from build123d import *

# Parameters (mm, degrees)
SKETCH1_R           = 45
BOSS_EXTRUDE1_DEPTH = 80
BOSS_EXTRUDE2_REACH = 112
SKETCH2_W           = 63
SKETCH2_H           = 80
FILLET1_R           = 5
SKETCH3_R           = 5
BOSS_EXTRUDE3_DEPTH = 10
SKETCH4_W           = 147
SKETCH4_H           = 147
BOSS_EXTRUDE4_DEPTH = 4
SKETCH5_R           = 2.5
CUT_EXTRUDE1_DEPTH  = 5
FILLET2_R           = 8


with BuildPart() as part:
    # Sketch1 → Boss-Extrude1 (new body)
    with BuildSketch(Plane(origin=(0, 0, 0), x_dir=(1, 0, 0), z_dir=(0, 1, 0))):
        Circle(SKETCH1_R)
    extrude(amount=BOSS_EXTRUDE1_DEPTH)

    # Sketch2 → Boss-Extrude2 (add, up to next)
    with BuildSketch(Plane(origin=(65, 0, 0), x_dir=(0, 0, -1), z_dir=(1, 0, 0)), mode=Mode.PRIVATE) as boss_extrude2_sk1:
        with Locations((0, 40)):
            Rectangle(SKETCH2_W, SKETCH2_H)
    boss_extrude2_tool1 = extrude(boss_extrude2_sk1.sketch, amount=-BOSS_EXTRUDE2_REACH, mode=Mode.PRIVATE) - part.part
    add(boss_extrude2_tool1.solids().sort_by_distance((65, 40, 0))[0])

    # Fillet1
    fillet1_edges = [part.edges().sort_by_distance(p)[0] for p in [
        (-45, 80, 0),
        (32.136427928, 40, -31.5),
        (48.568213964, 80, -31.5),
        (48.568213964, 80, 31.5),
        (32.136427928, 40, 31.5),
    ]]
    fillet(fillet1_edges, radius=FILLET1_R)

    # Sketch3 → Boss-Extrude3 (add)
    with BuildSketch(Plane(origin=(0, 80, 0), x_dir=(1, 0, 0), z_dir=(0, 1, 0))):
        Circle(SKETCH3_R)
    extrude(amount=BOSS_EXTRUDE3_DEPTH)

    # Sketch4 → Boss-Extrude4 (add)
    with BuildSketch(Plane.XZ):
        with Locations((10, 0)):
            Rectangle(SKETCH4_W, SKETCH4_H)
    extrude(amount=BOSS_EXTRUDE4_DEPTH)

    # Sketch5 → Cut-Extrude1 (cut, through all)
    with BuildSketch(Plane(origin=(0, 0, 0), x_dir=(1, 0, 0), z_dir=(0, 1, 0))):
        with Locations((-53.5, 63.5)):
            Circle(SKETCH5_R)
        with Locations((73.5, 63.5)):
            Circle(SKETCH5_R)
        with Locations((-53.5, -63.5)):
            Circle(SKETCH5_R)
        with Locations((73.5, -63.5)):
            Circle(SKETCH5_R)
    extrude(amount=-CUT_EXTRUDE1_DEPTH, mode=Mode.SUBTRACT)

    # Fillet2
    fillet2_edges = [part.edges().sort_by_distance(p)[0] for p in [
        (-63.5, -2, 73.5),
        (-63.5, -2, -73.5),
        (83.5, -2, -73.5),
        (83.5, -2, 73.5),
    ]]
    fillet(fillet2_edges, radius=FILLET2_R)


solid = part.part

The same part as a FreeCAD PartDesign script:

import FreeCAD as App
import Part
import Sketcher
from FreeCAD import Vector
Q = App.Units.Quantity


def edges_at(feature, points):
    """Names of the edges that pass closest to the given points."""
    edges = feature.Shape.Edges
    near = lambda p: min(range(len(edges)), key=lambda i: edges[i].distToShape(Part.Vertex(*p))[0])
    return sorted({f"Edge{near(p) + 1}" for p in points})

doc = App.newDocument("Part")
body = doc.addObject("PartDesign::Body", "Body")

sketch1 = body.newObject("Sketcher::SketchObject", "Sketch")
sketch1.AttachmentSupport = (doc.getObject("XZ_Plane"), [""])
sketch1.MapMode = "FlatFace"
sketch1.addGeometry(Part.Circle(Vector(0, 0, 0), Vector(0, 0, 1), 45), False)
sketch1.addConstraint([
    Sketcher.Constraint("Coincident", 0, 3, -1, 1),
    Sketcher.Constraint("Diameter", 0, Q("90 mm")),
])
pad1 = body.newObject("PartDesign::Pad", "Pad")
pad1.Profile = sketch1
pad1.Length = 80
pad1.Reversed = True

sketch2 = body.newObject("Sketcher::SketchObject", "Sketch001")
sketch2.AttachmentSupport = (doc.getObject("YZ_Plane"), [""])
sketch2.MapMode = "FlatFace"
sketch2.AttachmentOffset = App.Placement(Vector(0, 0, 65), App.Rotation())
sketch2.addGeometry([
    Part.LineSegment(Vector(80, 32, 0), Vector(0, 32, 0)),
    Part.LineSegment(Vector(0, 32, 0), Vector(0, -32, 0)),
    Part.LineSegment(Vector(0, -32, 0), Vector(80, -32, 0)),
    Part.LineSegment(Vector(80, -32, 0), Vector(80, 32, 0)),
], False)
sketch2.addConstraint([
    Sketcher.Constraint("Coincident", 0, 2, 1, 1),
    Sketcher.Constraint("Coincident", 1, 2, 2, 1),
    Sketcher.Constraint("Coincident", 2, 2, 3, 1),
    Sketcher.Constraint("Coincident", 3, 2, 0, 1),
    Sketcher.Constraint("Horizontal", 0),
    Sketcher.Constraint("Vertical", 1),
    Sketcher.Constraint("Horizontal", 2),
    Sketcher.Constraint("Vertical", 3),
    Sketcher.Constraint("Symmetric", 0, 2, 1, 2, -1, 1),
    Sketcher.Constraint("DistanceX", 0, 2, 0, 1, Q("80 mm")),
    Sketcher.Constraint("DistanceY", 1, 2, 1, 1, Q("63 mm")),
])
pad2 = body.newObject("PartDesign::Pad", "Pad001")
pad2.Profile = sketch2
pad2.Type = "UpToFirst"
pad2.Reversed = True
doc.recompute()

fillet = body.newObject("PartDesign::Fillet", "Fillet")
fillet.Base = (pad2, edges_at(pad2, [
    (-45, 80, 0),
    (32.136, 40, -31.5),
    (48.568, 80, -31.5),
    (48.568, 80, 31.5),
    (32.136, 40, 31.5),
]))
fillet.Radius = 5

sketch3 = body.newObject("Sketcher::SketchObject", "Sketch002")
sketch3.AttachmentSupport = (doc.getObject("XZ_Plane"), [""])
sketch3.MapMode = "FlatFace"
sketch3.AttachmentOffset = App.Placement(Vector(0, 0, -80), App.Rotation())
sketch3.addGeometry(Part.Circle(Vector(0, 0, 0), Vector(0, 0, 1), 5), False)
sketch3.addConstraint([
    Sketcher.Constraint("Coincident", 0, 3, -1, 1),
    Sketcher.Constraint("Diameter", 0, Q("10 mm")),
])
pad3 = body.newObject("PartDesign::Pad", "Pad002")
pad3.Profile = sketch3
pad3.Length = 10
pad3.Reversed = True

sketch4 = body.newObject("Sketcher::SketchObject", "Sketch003")
sketch4.AttachmentSupport = (doc.getObject("XZ_Plane"), [""])
sketch4.MapMode = "FlatFace"
sketch4.addGeometry([
    Part.LineSegment(Vector(-64, 74, 0), Vector(-64, -74, 0)),
    Part.LineSegment(Vector(-64, -74, 0), Vector(84, -74, 0)),
    Part.LineSegment(Vector(84, -74, 0), Vector(84, 74, 0)),
    Part.LineSegment(Vector(84, 74, 0), Vector(-64, 74, 0)),
], False)
sketch4.addConstraint([
    Sketcher.Constraint("Coincident", 0, 2, 1, 1),
    Sketcher.Constraint("Coincident", 1, 2, 2, 1),
    Sketcher.Constraint("Coincident", 2, 2, 3, 1),
    Sketcher.Constraint("Coincident", 3, 2, 0, 1),
    Sketcher.Constraint("Vertical", 0),
    Sketcher.Constraint("Horizontal", 1),
    Sketcher.Constraint("Vertical", 2),
    Sketcher.Constraint("Horizontal", 3),
    Sketcher.Constraint("Equal", 3, 0),
    Sketcher.Constraint("DistanceX", 1, 1, 1, 2, Q("147 mm")),
    Sketcher.Constraint("DistanceX", 0, 2, -1, 1, Q("63.5 mm")),
    Sketcher.Constraint("DistanceY", 0, 2, -1, 1, Q("73.5 mm")),
])
pad4 = body.newObject("PartDesign::Pad", "Pad003")
pad4.Profile = sketch4
pad4.Length = 4

sketch5 = body.newObject("Sketcher::SketchObject", "Sketch004")
sketch5.AttachmentSupport = (doc.getObject("XZ_Plane"), [""])
sketch5.MapMode = "FlatFace"
sketch5.addGeometry([
    Part.Circle(Vector(-53.5, -63.5, 0), Vector(0, 0, 1), 2.5),
    Part.Circle(Vector(73.5, -63.5, 0), Vector(0, 0, 1), 2.5),
    Part.Circle(Vector(-53.5, 63.5, 0), Vector(0, 0, 1), 2.5),
    Part.Circle(Vector(73.5, 63.5, 0), Vector(0, 0, 1), 2.5),
], False)
sketch5.addConstraint([
    Sketcher.Constraint("Equal", 0, 1),
    Sketcher.Constraint("Equal", 1, 2),
    Sketcher.Constraint("Equal", 2, 3),
    Sketcher.Constraint("Symmetric", 0, 3, 2, 3, -1),
    Sketcher.Constraint("Symmetric", 1, 3, 3, 3, -1),
    Sketcher.Constraint("Horizontal", 0, 3, 1, 3),
    Sketcher.Constraint("Diameter", 0, Q("5 mm")),
    Sketcher.Constraint("DistanceX", 0, 3, 1, 3, Q("127 mm")),
    Sketcher.Constraint("DistanceY", 0, 3, 2, 3, Q("127 mm")),
    Sketcher.Constraint("DistanceX", 0, 3, -1, 1, Q("53.5 mm")),
])
pocket1 = body.newObject("PartDesign::Pocket", "Pocket")
pocket1.Profile = sketch5
pocket1.Type = "ThroughAll"
pocket1.Reversed = True
doc.recompute()

fillet2 = body.newObject("PartDesign::Fillet", "Fillet001")
fillet2.Base = (pocket1, edges_at(pocket1, [
    (-63.5, -2, 73.5),
    (-63.5, -2, -73.5),
    (83.5, -2, -73.5),
    (83.5, -2, 73.5),
]))
fillet2.Radius = 8

doc.recompute()
